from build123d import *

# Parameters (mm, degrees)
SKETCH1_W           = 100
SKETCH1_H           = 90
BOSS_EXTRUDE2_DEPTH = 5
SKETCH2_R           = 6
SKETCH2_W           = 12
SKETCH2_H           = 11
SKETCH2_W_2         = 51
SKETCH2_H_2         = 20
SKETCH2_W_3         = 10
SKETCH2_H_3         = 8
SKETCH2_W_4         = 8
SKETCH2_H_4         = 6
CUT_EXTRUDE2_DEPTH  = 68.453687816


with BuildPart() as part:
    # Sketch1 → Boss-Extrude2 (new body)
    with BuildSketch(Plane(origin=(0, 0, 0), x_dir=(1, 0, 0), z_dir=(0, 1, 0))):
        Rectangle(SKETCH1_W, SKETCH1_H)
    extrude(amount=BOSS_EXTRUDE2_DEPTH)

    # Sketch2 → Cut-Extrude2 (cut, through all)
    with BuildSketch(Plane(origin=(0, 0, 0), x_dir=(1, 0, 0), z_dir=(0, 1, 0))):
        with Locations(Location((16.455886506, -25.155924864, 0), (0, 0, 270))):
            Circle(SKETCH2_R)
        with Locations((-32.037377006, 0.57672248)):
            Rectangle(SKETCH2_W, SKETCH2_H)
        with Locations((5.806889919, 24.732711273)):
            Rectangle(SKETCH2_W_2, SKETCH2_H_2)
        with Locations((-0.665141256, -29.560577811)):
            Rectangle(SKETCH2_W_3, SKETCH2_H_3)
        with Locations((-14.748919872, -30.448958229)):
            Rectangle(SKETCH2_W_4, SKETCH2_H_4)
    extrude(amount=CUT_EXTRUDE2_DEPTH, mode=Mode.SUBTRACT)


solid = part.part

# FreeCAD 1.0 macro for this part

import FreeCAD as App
import Part
import Sketcher
from FreeCAD import Vector


def add_polygon(sketch, points):
    """Adds a closed chain of lines whose ends are joined by coincident constraints."""
    first, n = sketch.GeometryCount, len(points)
    for a, b in zip(points, points[1:] + points[:1]):
        sketch.addGeometry(Part.LineSegment(App.Vector(*a, 0), App.Vector(*b, 0)), False)
    for i in range(n):
        sketch.addConstraint(Sketcher.Constraint("Coincident", first + i, 2, first + (i + 1) % n, 1))

doc = App.newDocument("Part")
body = doc.addObject("PartDesign::Body", "Body")

sketch1 = body.newObject("Sketcher::SketchObject", "Sketch")
sketch1.AttachmentSupport = (doc.getObject("XZ_Plane"), [""])
sketch1.MapMode = "FlatFace"
add_polygon(sketch1, [(-50, -45), (-50, 45), (50, 45), (50, -45)])
sketch1.addConstraint(Sketcher.Constraint("Vertical", 0))
sketch1.addConstraint(Sketcher.Constraint("Horizontal", 1))
sketch1.addConstraint(Sketcher.Constraint("Vertical", 2))
sketch1.addConstraint(Sketcher.Constraint("Horizontal", 3))
sketch1.addConstraint(Sketcher.Constraint("Symmetric", 0, 2, 2, 2, -1, 1))
sketch1.addConstraint(Sketcher.Constraint("DistanceX", 1, 1, 1, 2, 100.0))
sketch1.addConstraint(Sketcher.Constraint("DistanceY", 0, 1, 0, 2, 90.0))
pad1 = body.newObject("PartDesign::Pad", "Pad")
pad1.Profile = sketch1
pad1.Length = 5
pad1.Reversed = True

sketch2 = body.newObject("Sketcher::SketchObject", "Sketch001")
sketch2.AttachmentSupport = (doc.getObject("XZ_Plane"), [""])
sketch2.MapMode = "FlatFace"
sketch2.addGeometry(Part.Circle(Vector(16.455887, 25.155925, 0), Vector(0, 0, 1), 6), False)
add_polygon(sketch2, [(-38.037377, -6.076722), (-38.037377, 4.923278), (-26.037377, 4.923278), (-26.037377, -6.076722)])
add_polygon(sketch2, [(-19.69311, -34.732711), (-19.69311, -14.732711), (31.30689, -14.732711), (31.30689, -34.732711)])
add_polygon(sketch2, [(-5.665141, 25.560578), (-5.665141, 33.560578), (4.334859, 33.560578), (4.334859, 25.560578)])
add_polygon(sketch2, [(-18.74892, 27.448958), (-18.74892, 33.448958), (-10.74892, 33.448958), (-10.74892, 27.448958)])
sketch2.addConstraint(Sketcher.Constraint("Vertical", 1))
sketch2.addConstraint(Sketcher.Constraint("Horizontal", 2))
sketch2.addConstraint(Sketcher.Constraint("Vertical", 3))
sketch2.addConstraint(Sketcher.Constraint("Horizontal", 4))
sketch2.addConstraint(Sketcher.Constraint("Vertical", 5))
sketch2.addConstraint(Sketcher.Constraint("Horizontal", 6))
sketch2.addConstraint(Sketcher.Constraint("Vertical", 7))
sketch2.addConstraint(Sketcher.Constraint("Horizontal", 8))
sketch2.addConstraint(Sketcher.Constraint("Vertical", 9))
sketch2.addConstraint(Sketcher.Constraint("Horizontal", 10))
sketch2.addConstraint(Sketcher.Constraint("Vertical", 11))
sketch2.addConstraint(Sketcher.Constraint("Horizontal", 12))
sketch2.addConstraint(Sketcher.Constraint("Vertical", 13))
sketch2.addConstraint(Sketcher.Constraint("Horizontal", 14))
sketch2.addConstraint(Sketcher.Constraint("Vertical", 15))
sketch2.addConstraint(Sketcher.Constraint("Horizontal", 16))
sketch2.addConstraint(Sketcher.Constraint("Equal", 16, 9))
sketch2.addConstraint(Sketcher.Constraint("Diameter", 0, 12.0))
sketch2.addConstraint(Sketcher.Constraint("DistanceX", 2, 1, 2, 2, 12.0))
sketch2.addConstraint(Sketcher.Constraint("DistanceX", 6, 1, 6, 2, 51.0))
sketch2.addConstraint(Sketcher.Constraint("DistanceX", 10, 1, 10, 2, 10.0))
sketch2.addConstraint(Sketcher.Constraint("DistanceX", 14, 1, 14, 2, 8.0))
sketch2.addConstraint(Sketcher.Constraint("DistanceY", 1, 1, 1, 2, 11.0))
sketch2.addConstraint(Sketcher.Constraint("DistanceY", 5, 1, 5, 2, 20.0))
sketch2.addConstraint(Sketcher.Constraint("DistanceY", 13, 1, 13, 2, 6.0))
sketch2.addConstraint(Sketcher.Constraint("DistanceY", 2, 2, 9, 2, 28.6373))
sketch2.addConstraint(Sketcher.Constraint("DistanceX", 5, 2, -1, 1, 19.69311))
sketch2.addConstraint(Sketcher.Constraint("DistanceY", 5, 2, -1, 1, 14.732711))
sketch2.addConstraint(Sketcher.Constraint("DistanceX", 9, 2, -1, 1, 5.665141))
sketch2.addConstraint(Sketcher.Constraint("DistanceX", 13, 2, -1, 1, 18.74892))
sketch2.addConstraint(Sketcher.Constraint("DistanceY", -1, 1, 13, 2, 33.448958))
sketch2.addConstraint(Sketcher.Constraint("DistanceY", 5, 2, 3, 2, 8.655989))
sketch2.addConstraint(Sketcher.Constraint("DistanceX", -1, 1, 0, 3, 16.455887))
sketch2.addConstraint(Sketcher.Constraint("DistanceY", -1, 1, 0, 3, 25.155925))
sketch2.addConstraint(Sketcher.Constraint("DistanceX", 1, 2, -1, 1, 38.037377))
pocket1 = body.newObject("PartDesign::Pocket", "Pocket")
pocket1.Profile = sketch2
pocket1.Type = "ThroughAll"

doc.recompute()
